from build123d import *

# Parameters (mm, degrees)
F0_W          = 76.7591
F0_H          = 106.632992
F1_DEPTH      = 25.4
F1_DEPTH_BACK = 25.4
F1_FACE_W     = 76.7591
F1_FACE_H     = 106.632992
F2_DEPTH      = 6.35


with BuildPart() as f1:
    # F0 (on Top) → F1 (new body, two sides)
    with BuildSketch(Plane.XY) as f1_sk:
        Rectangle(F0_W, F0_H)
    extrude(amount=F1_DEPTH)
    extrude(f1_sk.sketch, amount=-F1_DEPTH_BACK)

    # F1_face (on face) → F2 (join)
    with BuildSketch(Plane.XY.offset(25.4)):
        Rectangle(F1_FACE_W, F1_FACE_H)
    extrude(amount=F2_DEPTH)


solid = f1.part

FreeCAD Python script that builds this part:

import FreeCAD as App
import Part
import Sketcher

V = App.Vector


def add_polygon(sketch, points):
    """Adds a closed chain of lines whose ends are joined by coincident constraints."""
    first, n = sketch.GeometryCount, len(points)
    for a, b in zip(points, points[1:] + points[:1]):
        sketch.addGeometry(Part.LineSegment(App.Vector(*a, 0), App.Vector(*b, 0)), False)
    for i in range(n):
        sketch.addConstraint(Sketcher.Constraint("Coincident", first + i, 2, first + (i + 1) % n, 1))

doc = App.newDocument("Part")
params = doc.addObject("Spreadsheet::Sheet", "Params")
for row, (alias, value) in enumerate([
    ("pad1_length", "1 in"),
    ("pad1_length2", "1 in"),
    ("pad2_length", "0.25 in"),
], start=1):
    params.set(f"A{row}", alias)
    params.set(f"B{row}", "=" + value)
    params.setAlias(f"B{row}", alias)

body = doc.addObject("PartDesign::Body", "Body")

# Sketch on XY plane
sketch1 = body.newObject("Sketcher::SketchObject", "Sketch")
sketch1.AttachmentSupport = (doc.getObject("XY_Plane"), [""])
sketch1.MapMode = "FlatFace"
add_polygon(sketch1, [(-38, 53), (-38, -53), (38, -53), (38, 53)])  # lines 0-3
sketch1.addConstraint([
    Sketcher.Constraint("Vertical", 0),
    Sketcher.Constraint("Horizontal", 1),
    Sketcher.Constraint("Vertical", 2),
    Sketcher.Constraint("Horizontal", 3),
    Sketcher.Constraint("Symmetric", 0, 2, 2, 2, -1, 1),
    Sketcher.Constraint("DistanceX", 1, 1, 1, 2, 76.7591),
    Sketcher.Constraint("DistanceY", 0, 2, 0, 1, 106.632992),
])
pad1 = body.newObject("PartDesign::Pad", "Pad")
pad1.Profile = sketch1
pad1.Type = "TwoLengths"
pad1.setExpression("Length", "Params.pad1_length")
pad1.setExpression("Length2", "Params.pad1_length2")

# Sketch on XY plane
sketch2 = body.newObject("Sketcher::SketchObject", "Sketch001")
sketch2.AttachmentSupport = (doc.getObject("XY_Plane"), [""])
sketch2.MapMode = "FlatFace"
sketch2.AttachmentOffset = App.Placement(V(0, 0, 1 * 25.4), App.Rotation())
add_polygon(sketch2, [(-38, 53), (-38, -53), (38, -53), (38, 53)])  # lines 0-3
sketch2.addConstraint([
    Sketcher.Constraint("Vertical", 0),
    Sketcher.Constraint("Horizontal", 1),
    Sketcher.Constraint("Vertical", 2),
    Sketcher.Constraint("Horizontal", 3),
    Sketcher.Constraint("Symmetric", 0, 2, 2, 2, -1, 1),
    Sketcher.Constraint("DistanceX", 1, 1, 1, 2, 76.7591),
    Sketcher.Constraint("DistanceY", 0, 2, 0, 1, 106.632992),
])
pad2 = body.newObject("PartDesign::Pad", "Pad001")
pad2.Profile = sketch2
pad2.setExpression("Length", "Params.pad2_length")

doc.recompute()
